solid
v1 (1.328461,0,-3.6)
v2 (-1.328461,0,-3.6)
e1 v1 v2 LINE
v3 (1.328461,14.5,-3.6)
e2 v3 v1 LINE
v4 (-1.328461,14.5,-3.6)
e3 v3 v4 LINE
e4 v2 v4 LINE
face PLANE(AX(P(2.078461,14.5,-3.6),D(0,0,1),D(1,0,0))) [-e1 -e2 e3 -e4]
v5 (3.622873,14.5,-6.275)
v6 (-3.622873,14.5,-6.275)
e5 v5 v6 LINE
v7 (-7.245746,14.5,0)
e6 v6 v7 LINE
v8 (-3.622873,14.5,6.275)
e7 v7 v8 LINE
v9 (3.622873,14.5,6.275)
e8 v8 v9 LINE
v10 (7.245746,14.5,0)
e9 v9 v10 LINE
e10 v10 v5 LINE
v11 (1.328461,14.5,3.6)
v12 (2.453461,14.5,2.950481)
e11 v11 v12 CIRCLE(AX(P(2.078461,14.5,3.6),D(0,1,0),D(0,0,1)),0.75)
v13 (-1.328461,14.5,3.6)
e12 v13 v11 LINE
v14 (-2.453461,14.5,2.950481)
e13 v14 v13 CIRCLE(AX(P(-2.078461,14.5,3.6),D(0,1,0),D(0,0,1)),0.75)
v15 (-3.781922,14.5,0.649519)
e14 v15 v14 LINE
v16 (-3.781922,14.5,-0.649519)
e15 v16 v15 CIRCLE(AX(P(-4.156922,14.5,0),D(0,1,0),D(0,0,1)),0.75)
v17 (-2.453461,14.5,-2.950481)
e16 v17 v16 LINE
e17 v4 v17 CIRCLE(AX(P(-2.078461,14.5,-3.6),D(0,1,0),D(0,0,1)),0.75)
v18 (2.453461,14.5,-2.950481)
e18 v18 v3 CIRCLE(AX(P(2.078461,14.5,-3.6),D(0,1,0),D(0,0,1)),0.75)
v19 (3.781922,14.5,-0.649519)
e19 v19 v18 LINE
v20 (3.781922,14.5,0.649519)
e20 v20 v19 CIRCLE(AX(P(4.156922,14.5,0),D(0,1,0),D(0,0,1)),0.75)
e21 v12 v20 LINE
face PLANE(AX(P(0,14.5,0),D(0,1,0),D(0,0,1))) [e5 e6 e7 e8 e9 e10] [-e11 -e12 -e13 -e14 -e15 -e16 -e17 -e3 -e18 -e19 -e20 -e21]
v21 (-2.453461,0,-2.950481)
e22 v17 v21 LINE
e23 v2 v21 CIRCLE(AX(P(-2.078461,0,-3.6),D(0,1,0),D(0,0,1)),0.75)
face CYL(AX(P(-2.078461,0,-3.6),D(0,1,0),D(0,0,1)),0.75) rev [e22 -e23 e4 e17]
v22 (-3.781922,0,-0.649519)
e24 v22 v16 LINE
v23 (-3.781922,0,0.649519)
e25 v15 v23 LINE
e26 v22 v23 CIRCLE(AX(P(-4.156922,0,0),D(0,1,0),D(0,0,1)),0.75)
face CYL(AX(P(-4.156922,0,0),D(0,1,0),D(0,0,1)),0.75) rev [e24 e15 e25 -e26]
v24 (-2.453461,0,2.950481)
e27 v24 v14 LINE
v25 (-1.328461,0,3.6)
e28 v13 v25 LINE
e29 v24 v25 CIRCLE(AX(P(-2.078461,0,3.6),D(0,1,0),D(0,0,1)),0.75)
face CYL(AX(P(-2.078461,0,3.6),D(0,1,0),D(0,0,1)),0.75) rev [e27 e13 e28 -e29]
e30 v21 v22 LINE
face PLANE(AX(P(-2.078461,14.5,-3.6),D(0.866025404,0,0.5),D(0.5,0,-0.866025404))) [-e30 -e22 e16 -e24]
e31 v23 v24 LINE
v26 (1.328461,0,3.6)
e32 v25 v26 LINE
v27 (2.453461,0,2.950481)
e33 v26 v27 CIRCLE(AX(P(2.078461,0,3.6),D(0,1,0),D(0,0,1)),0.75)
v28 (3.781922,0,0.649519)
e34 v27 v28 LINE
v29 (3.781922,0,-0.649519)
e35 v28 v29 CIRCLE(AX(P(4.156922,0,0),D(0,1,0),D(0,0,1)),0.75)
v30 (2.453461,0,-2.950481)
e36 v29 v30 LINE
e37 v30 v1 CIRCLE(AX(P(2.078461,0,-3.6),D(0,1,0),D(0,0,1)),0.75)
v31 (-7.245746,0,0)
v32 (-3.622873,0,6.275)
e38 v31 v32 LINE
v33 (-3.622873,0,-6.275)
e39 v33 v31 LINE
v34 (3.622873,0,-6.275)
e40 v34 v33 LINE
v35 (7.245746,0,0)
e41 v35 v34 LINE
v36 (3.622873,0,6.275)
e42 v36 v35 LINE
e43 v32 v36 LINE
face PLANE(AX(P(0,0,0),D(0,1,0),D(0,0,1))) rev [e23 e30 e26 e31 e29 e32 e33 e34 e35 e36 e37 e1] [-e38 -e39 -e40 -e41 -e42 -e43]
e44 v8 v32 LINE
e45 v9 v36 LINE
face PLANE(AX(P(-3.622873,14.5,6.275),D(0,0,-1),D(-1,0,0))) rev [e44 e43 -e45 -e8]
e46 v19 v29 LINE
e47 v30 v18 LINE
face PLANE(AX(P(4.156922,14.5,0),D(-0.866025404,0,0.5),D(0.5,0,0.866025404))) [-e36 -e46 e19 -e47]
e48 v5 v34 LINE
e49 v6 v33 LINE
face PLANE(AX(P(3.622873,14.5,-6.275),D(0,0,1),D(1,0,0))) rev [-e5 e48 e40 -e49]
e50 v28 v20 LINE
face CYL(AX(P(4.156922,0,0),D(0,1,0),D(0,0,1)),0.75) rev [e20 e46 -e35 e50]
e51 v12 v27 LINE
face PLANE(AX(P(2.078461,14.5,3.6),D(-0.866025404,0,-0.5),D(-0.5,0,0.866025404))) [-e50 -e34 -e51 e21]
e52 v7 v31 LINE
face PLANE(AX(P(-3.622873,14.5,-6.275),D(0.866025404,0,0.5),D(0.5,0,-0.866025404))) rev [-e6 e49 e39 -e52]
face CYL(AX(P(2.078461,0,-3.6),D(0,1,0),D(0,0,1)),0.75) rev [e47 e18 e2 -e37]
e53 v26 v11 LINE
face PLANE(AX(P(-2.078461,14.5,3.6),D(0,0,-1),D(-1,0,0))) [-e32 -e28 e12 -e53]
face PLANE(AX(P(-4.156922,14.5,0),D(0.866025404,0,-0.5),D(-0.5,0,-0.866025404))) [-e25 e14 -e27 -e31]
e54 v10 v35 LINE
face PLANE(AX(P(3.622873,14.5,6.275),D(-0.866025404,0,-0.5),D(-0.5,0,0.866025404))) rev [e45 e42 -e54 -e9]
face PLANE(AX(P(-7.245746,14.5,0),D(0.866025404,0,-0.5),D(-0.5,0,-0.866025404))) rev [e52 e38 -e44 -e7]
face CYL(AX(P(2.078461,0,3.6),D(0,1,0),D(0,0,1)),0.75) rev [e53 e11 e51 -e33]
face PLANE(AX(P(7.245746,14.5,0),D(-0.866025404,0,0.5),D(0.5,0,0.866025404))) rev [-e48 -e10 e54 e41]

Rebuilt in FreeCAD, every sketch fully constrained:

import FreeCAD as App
import Part
import Sketcher
from FreeCAD import Vector
Q = App.Units.Quantity


def add_polygon(sketch, points):
    """Adds a closed chain of lines whose ends are joined by coincident constraints."""
    first, n = sketch.GeometryCount, len(points)
    for a, b in zip(points, points[1:] + points[:1]):
        sketch.addGeometry(Part.LineSegment(App.Vector(*a, 0), App.Vector(*b, 0)), False)
    for i in range(n):
        sketch.addConstraint(Sketcher.Constraint("Coincident", first + i, 2, first + (i + 1) % n, 1))

doc = App.newDocument("Part")
body = doc.addObject("PartDesign::Body", "Body")

sketch1 = body.newObject("Sketcher::SketchObject", "Sketch")
sketch1.AttachmentSupport = (doc.getObject("XZ_Plane"), [""])
sketch1.MapMode = "FlatFace"
add_polygon(sketch1, [(-3.6, -6.3), (-7.2, 0), (-3.6, 6.3), (3.6, 6.3), (7.2, 0), (3.6, -6.3)])
add_polygon(sketch1, [(2.1, -3.6), (4.2, 0), (2.1, 3.6), (-2.1, 3.6), (-4.2, 0), (-2.1, -3.6)])
sketch1.addConstraint(Sketcher.Constraint("Horizontal", 2))
sketch1.addConstraint(Sketcher.Constraint("Horizontal", 5))
sketch1.addConstraint(Sketcher.Constraint("Horizontal", 8))
sketch1.addConstraint(Sketcher.Constraint("Horizontal", 11))
sketch1.addConstraint(Sketcher.Constraint("Symmetric", 0, 2, 3, 2, -1, 1))
sketch1.addConstraint(Sketcher.Constraint("Symmetric", 1, 2, 4, 2, -1, 1))
sketch1.addConstraint(Sketcher.Constraint("Symmetric", 6, 2, 9, 2, -1, 1))
sketch1.addConstraint(Sketcher.Constraint("Symmetric", 7, 2, 10, 2, -1, 1))
sketch1.addConstraint(Sketcher.Constraint("PointOnObject", 0, 2, -1))
sketch1.addConstraint(Sketcher.Constraint("PointOnObject", 6, 2, -1))
sketch1.addConstraint(Sketcher.Constraint("Parallel", 0, 3))
sketch1.addConstraint(Sketcher.Constraint("Parallel", 4, 6))
sketch1.addConstraint(Sketcher.Constraint("Parallel", 3, 7))
sketch1.addConstraint(Sketcher.Constraint("Parallel", 6, 9))
sketch1.addConstraint(Sketcher.Constraint("Vertical", 2, 2, 4, 2))
sketch1.addConstraint(Sketcher.Constraint("Angle", 0, Q("120 deg")))
sketch1.addConstraint(Sketcher.Constraint("DistanceY", -1, 1, 7, 2, 3.6))
sketch1.addConstraint(Sketcher.Constraint("DistanceY", 4, 2, 2, 2, 12.55))
sketch1.addConstraint(Sketcher.Constraint("DistanceX", 8, 2, 8, 1, 4.156922))
sketch1.addConstraint(Sketcher.Constraint("DistanceX", 2, 1, 2, 2, 7.245746))
pad1 = body.newObject("PartDesign::Pad", "Pad")
pad1.Profile = sketch1
pad1.Length = 14.5
pad1.Reversed = True

sketch2 = body.newObject("Sketcher::SketchObject", "Sketch001")
sketch2.AttachmentSupport = (doc.getObject("XZ_Plane"), [""])
sketch2.MapMode = "FlatFace"
sketch2.AttachmentOffset = App.Placement(Vector(0, 0, -14.5), App.Rotation())
sketch2.addGeometry(Part.Circle(Vector(-2.1, -3.6, 0), Vector(0, 0, 1), 0.8), False)
sketch2.addGeometry(Part.Circle(Vector(2.1, -3.6, 0), Vector(0, 0, 1), 0.8), False)
sketch2.addGeometry(Part.Circle(Vector(4.2, 0, 0), Vector(0, 0, 1), 0.8), False)
sketch2.addGeometry(Part.Circle(Vector(2.1, 3.6, 0), Vector(0, 0, 1), 0.8), False)
sketch2.addGeometry(Part.Circle(Vector(-2.1, 3.6, 0), Vector(0, 0, 1), 0.8), False)
sketch2.addGeometry(Part.Circle(Vector(-4.2, 0, 0), Vector(0, 0, 1), 0.8), False)
sketch2.addConstraint(Sketcher.Constraint("Equal", 0, 1))
sketch2.addConstraint(Sketcher.Constraint("Equal", 1, 2))
sketch2.addConstraint(Sketcher.Constraint("Equal", 2, 3))
sketch2.addConstraint(Sketcher.Constraint("Equal", 3, 4))
sketch2.addConstraint(Sketcher.Constraint("Equal", 4, 5))
sketch2.addConstraint(Sketcher.Constraint("Symmetric", 0, 3, 3, 3, -1, 1))
sketch2.addConstraint(Sketcher.Constraint("Symmetric", 1, 3, 4, 3, -1, 1))
sketch2.addConstraint(Sketcher.Constraint("Symmetric", 2, 3, 5, 3, -1, 1))
sketch2.addConstraint(Sketcher.Constraint("Symmetric", 0, 3, 1, 3, -2))
sketch2.addConstraint(Sketcher.Constraint("PointOnObject", 2, 3, -1))
sketch2.addConstraint(Sketcher.Constraint("Diameter", 0, 1.5))
sketch2.addConstraint(Sketcher.Constraint("DistanceY", 0, 3, -1, 1, 3.6))
sketch2.addConstraint(Sketcher.Constraint("DistanceX", 0, 3, -1, 1, 2.078461))
sketch2.addConstraint(Sketcher.Constraint("DistanceX", -1, 1, 2, 3, 4.156922))
pocket1 = body.newObject("PartDesign::Pocket", "Pocket")
pocket1.Profile = sketch2
pocket1.Type = "ThroughAll"
pocket1.Reversed = True

doc.recompute()
